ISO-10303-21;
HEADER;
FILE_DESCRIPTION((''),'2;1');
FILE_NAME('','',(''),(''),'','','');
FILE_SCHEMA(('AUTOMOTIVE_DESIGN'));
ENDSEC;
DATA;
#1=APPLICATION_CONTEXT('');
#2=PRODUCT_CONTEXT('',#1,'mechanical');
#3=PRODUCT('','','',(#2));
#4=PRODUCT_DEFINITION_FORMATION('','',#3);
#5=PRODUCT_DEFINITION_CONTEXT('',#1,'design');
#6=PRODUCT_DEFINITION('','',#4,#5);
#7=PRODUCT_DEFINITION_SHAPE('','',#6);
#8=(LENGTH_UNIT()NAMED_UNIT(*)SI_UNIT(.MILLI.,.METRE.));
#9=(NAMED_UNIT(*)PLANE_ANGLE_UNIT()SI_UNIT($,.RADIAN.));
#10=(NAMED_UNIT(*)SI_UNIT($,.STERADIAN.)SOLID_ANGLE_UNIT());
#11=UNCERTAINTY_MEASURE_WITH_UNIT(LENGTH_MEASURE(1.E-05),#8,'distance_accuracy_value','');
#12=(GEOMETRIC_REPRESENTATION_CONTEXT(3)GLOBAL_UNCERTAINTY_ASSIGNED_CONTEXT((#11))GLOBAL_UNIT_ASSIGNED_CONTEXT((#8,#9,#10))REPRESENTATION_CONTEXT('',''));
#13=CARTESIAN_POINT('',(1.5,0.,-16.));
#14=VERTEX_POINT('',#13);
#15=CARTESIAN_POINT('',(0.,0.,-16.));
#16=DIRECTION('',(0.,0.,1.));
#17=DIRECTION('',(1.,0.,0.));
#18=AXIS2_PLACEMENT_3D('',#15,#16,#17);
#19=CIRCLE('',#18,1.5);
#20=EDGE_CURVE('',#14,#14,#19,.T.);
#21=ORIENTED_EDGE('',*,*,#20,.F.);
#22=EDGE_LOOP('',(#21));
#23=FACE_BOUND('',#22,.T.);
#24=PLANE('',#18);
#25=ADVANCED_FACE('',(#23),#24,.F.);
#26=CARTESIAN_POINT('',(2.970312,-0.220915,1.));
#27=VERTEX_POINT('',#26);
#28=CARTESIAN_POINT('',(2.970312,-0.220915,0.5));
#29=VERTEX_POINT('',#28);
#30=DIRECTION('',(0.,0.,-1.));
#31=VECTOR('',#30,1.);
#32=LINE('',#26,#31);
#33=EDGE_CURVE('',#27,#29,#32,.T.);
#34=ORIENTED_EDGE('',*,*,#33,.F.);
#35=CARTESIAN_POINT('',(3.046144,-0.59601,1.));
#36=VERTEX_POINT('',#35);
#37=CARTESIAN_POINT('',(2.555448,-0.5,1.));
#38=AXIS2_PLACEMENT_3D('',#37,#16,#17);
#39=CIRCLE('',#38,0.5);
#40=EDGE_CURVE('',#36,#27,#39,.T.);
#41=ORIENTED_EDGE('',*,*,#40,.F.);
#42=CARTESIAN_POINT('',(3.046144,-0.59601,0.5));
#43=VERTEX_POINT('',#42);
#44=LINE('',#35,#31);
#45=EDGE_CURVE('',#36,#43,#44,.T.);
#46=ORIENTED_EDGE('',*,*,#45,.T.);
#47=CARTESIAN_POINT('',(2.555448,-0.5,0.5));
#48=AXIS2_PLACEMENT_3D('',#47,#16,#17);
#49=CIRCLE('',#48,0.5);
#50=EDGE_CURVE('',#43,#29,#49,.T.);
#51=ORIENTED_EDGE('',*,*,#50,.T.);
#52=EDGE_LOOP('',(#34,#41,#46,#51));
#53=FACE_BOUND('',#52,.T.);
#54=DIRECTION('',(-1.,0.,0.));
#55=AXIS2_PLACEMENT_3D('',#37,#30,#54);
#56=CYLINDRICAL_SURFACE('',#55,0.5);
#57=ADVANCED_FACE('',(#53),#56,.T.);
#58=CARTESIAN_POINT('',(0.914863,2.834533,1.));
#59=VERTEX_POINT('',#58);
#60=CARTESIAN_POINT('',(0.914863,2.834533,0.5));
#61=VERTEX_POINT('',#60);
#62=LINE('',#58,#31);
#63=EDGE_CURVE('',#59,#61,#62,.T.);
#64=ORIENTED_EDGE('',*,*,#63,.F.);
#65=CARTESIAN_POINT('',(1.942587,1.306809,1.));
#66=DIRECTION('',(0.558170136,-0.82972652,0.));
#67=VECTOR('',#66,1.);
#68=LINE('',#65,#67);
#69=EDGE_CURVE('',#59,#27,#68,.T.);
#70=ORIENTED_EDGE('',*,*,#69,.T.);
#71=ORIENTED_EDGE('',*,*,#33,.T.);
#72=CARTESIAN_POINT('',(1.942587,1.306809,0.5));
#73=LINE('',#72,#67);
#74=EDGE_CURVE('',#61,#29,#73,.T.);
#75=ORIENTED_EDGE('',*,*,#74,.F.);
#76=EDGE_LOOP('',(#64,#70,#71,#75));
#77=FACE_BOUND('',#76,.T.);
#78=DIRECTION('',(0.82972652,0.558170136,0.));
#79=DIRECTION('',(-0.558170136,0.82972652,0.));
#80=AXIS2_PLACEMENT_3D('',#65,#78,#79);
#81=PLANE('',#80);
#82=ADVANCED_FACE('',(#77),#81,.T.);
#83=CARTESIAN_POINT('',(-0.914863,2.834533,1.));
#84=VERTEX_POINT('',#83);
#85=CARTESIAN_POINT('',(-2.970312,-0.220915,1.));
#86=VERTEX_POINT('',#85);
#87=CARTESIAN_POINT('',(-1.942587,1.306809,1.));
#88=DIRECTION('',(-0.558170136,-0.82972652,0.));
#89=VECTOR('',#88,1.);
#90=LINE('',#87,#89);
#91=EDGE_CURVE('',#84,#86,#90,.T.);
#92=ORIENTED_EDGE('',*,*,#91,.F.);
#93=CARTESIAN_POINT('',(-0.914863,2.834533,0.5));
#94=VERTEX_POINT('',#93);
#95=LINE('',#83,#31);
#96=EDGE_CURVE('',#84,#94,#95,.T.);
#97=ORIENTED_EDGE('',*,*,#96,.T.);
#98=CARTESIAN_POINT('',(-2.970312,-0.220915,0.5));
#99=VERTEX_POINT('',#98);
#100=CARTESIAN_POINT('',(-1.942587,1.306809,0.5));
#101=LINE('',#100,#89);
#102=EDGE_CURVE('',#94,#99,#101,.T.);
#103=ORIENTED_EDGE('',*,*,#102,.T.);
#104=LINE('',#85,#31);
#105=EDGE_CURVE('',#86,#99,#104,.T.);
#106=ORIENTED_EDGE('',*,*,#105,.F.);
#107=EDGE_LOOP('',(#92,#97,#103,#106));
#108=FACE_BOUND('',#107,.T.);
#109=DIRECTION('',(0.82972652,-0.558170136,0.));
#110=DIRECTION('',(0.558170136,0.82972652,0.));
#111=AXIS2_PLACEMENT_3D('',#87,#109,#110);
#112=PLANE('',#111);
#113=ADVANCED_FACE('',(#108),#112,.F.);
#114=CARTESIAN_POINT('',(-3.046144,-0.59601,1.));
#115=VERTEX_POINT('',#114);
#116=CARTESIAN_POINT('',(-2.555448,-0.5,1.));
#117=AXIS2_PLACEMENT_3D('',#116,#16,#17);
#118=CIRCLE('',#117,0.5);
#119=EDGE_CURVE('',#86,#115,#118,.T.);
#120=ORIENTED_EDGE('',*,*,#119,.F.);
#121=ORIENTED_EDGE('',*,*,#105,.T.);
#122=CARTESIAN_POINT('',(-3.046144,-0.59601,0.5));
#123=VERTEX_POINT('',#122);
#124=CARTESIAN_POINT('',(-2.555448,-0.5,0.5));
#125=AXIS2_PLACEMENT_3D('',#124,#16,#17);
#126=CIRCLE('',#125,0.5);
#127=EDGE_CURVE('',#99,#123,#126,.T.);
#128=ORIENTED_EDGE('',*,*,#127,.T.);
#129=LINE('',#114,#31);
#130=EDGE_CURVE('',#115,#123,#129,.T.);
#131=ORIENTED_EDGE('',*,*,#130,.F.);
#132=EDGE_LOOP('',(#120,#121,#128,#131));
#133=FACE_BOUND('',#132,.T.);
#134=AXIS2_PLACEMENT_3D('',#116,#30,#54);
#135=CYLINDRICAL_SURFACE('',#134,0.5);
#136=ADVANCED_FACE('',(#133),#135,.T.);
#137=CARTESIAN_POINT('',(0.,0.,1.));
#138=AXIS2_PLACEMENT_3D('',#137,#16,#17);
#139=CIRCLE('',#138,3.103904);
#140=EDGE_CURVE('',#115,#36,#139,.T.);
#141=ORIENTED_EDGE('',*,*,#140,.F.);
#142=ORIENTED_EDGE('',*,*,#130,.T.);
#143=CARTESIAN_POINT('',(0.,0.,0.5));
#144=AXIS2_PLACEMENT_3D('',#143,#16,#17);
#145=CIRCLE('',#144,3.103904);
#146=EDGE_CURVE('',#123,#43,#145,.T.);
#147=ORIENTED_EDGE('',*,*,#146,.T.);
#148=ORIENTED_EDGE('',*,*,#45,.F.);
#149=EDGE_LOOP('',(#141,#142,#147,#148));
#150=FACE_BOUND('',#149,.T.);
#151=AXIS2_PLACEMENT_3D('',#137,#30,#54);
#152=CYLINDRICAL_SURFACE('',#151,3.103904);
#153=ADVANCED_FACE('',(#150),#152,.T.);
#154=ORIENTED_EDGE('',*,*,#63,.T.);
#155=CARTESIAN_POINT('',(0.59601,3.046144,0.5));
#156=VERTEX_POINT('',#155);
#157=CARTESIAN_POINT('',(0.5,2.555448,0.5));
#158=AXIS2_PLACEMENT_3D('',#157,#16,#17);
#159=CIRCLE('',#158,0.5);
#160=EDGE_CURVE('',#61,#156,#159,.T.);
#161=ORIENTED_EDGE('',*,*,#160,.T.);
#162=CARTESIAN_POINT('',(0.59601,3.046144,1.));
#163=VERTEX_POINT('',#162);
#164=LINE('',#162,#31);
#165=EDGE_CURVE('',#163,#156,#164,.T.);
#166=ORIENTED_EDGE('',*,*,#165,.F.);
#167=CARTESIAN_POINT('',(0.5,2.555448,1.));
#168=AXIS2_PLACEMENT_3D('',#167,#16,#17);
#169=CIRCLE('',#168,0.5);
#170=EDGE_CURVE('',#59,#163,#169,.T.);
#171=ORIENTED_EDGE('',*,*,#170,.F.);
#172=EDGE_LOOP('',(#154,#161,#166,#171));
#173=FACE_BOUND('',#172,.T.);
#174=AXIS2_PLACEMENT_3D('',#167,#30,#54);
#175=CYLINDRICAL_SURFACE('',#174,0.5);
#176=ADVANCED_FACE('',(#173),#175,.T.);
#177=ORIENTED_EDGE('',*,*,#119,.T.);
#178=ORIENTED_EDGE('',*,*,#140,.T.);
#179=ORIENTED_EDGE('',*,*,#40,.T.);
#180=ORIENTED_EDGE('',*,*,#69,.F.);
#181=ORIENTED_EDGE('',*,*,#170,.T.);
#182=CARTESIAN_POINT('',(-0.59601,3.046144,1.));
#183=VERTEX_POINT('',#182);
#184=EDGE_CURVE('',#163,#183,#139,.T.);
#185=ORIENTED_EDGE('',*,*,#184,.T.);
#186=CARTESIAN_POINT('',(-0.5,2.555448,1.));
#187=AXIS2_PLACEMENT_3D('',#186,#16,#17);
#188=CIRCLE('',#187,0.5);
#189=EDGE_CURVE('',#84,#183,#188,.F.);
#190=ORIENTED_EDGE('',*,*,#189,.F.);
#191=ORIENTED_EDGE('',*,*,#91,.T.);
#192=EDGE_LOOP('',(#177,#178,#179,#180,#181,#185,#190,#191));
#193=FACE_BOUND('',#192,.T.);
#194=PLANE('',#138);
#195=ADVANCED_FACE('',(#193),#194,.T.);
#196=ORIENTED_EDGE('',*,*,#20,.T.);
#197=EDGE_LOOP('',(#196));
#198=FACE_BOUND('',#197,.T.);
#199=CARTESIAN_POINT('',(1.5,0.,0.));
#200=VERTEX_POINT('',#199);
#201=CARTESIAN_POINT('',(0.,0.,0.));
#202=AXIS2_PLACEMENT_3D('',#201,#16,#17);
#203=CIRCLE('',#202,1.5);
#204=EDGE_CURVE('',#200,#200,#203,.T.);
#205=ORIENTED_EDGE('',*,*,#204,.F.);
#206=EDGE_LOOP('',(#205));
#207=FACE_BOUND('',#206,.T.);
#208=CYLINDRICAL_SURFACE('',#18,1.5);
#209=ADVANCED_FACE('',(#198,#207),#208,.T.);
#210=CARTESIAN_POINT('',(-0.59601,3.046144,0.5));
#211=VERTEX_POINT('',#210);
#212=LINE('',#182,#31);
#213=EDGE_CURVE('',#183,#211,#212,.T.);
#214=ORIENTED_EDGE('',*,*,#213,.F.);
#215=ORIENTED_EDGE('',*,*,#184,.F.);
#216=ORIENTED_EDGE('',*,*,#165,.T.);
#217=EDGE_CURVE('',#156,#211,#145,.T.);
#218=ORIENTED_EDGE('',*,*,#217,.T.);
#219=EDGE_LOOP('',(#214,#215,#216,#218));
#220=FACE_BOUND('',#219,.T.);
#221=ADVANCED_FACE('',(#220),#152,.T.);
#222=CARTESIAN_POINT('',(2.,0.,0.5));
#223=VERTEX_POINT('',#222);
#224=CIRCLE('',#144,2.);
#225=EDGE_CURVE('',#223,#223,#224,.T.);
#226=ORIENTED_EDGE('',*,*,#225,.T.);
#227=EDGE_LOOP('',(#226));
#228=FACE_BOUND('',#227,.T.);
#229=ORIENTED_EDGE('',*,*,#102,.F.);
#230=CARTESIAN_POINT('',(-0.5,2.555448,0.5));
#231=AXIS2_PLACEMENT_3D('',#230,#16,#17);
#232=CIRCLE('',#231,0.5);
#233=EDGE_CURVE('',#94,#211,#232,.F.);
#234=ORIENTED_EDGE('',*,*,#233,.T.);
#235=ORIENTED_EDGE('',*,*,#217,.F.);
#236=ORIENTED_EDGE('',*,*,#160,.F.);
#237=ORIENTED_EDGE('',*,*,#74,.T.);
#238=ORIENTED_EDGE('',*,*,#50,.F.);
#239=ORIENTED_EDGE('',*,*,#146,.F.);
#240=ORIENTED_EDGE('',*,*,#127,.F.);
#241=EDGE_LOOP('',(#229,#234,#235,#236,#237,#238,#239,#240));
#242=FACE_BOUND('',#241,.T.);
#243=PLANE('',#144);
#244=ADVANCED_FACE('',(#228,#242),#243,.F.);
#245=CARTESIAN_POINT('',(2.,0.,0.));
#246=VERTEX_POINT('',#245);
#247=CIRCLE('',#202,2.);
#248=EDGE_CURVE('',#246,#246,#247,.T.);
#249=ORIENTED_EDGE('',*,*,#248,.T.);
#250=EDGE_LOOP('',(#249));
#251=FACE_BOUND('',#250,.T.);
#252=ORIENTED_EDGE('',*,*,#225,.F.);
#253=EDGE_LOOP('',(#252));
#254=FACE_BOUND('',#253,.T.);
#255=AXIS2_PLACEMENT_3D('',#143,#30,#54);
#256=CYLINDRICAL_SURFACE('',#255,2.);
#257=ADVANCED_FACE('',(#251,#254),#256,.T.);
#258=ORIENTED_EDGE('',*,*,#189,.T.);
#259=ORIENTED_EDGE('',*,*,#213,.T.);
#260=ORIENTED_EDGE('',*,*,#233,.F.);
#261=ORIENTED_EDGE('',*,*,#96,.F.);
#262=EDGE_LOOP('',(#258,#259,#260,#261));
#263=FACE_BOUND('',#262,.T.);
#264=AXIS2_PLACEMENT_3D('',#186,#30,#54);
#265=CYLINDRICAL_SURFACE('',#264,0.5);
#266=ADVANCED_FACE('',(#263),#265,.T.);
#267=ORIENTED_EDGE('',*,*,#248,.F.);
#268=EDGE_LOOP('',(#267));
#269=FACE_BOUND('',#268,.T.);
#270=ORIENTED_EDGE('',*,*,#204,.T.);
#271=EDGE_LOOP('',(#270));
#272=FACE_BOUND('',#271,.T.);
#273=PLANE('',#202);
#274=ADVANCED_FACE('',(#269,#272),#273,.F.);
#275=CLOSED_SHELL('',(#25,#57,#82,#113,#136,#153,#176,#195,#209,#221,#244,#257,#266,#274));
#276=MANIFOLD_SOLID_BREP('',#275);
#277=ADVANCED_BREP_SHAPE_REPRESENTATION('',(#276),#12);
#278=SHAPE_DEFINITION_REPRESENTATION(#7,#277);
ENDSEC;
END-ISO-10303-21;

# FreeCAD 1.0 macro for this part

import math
import FreeCAD as App
import Part
import Sketcher
Q = App.Units.Quantity

doc = App.newDocument("Part")
body = doc.addObject("PartDesign::Body", "Body")

# Sketch on XY plane
sketch1 = body.newObject("Sketcher::SketchObject", "Sketch")
sketch1.AttachmentSupport = (doc.getObject("XY_Plane"), [""])
sketch1.MapMode = "FlatFace"
sketch1.addGeometry(Part.Circle(App.Vector(0, 0, 0), App.Vector(0, 0, 1), 1.5), False)
sketch1.addConstraint([
    Sketcher.Constraint("Coincident", 0, 3, -1, 1),
    Sketcher.Constraint("Diameter", 0, Q("3 mm")),
])
pad1 = body.newObject("PartDesign::Pad", "Pad")
pad1.Profile = sketch1
pad1.Length = 16
pad1.Reversed = True

# Sketch on XY plane
sketch2 = body.newObject("Sketcher::SketchObject", "Sketch001")
sketch2.AttachmentSupport = (doc.getObject("XY_Plane"), [""])
sketch2.MapMode = "FlatFace"
sketch2.addGeometry(Part.Circle(App.Vector(0, 0, 0), App.Vector(0, 0, 1), 2), False)
sketch2.addConstraint([
    Sketcher.Constraint("Coincident", 0, 3, -1, 1),
    Sketcher.Constraint("Diameter", 0, Q("4 mm")),
])
pad2 = body.newObject("PartDesign::Pad", "Pad001")
pad2.Profile = sketch2
pad2.Length = 0.5

# Sketch on XY plane
sketch3 = body.newObject("Sketcher::SketchObject", "Sketch002")
sketch3.AttachmentSupport = (doc.getObject("XY_Plane"), [""])
sketch3.MapMode = "FlatFace"
sketch3.AttachmentOffset = App.Placement(App.Vector(0, 0, 0.5), App.Rotation())
sketch3.addGeometry([
    Part.LineSegment(App.Vector(-0.914863, 2.834533, 0), App.Vector(-2.970312, -0.220915, 0)),  # 0
    Part.ArcOfCircle(Part.Circle(App.Vector(-2.555448, -0.5, 0), App.Vector(0, 0, 1), 0.5), math.radians(146.070655), math.radians(191.070655)),  # 1
    Part.ArcOfCircle(Part.Circle(App.Vector(0, 0, 0), App.Vector(0, 0, 1), 3.103904), math.radians(-168.929345), math.radians(-11.070655)),  # 2
    Part.ArcOfCircle(Part.Circle(App.Vector(2.555448, -0.5, 0), App.Vector(0, 0, 1), 0.5), math.radians(-11.070655), math.radians(33.929345)),  # 3
    Part.LineSegment(App.Vector(2.970312, -0.220915, 0), App.Vector(0.914863, 2.834533, 0)),  # 4
    Part.ArcOfCircle(Part.Circle(App.Vector(0.5, 2.555448, 0), App.Vector(0, 0, 1), 0.5), math.radians(33.929345), math.radians(78.929345)),  # 5
    Part.ArcOfCircle(Part.Circle(App.Vector(0, 0, 0), App.Vector(0, 0, 1), 3.103904), math.radians(78.929345), math.radians(90)),  # 6
    Part.ArcOfCircle(Part.Circle(App.Vector(0, 0, 0), App.Vector(0, 0, 1), 3.103904), math.radians(90), math.radians(101.070655)),  # 7
    Part.ArcOfCircle(Part.Circle(App.Vector(-0.5, 2.555448, 0), App.Vector(0, 0, 1), 0.5), math.radians(101.070655), math.radians(146.070655)),  # 8
], False)
sketch3.addConstraint([
    Sketcher.Constraint("Tangent", 0, 2, 1, 1),
    Sketcher.Constraint("Tangent", 1, 2, 2, 1),
    Sketcher.Constraint("Tangent", 2, 2, 3, 1),
    Sketcher.Constraint("Tangent", 3, 2, 4, 1),
    Sketcher.Constraint("Tangent", 4, 2, 5, 1),
    Sketcher.Constraint("Tangent", 5, 2, 6, 1),
    Sketcher.Constraint("Tangent", 6, 2, 7, 1),
    Sketcher.Constraint("Tangent", 7, 2, 8, 1),
    Sketcher.Constraint("Tangent", 8, 2, 0, 1),
    Sketcher.Constraint("Coincident", 2, 3, -1, 1),
    Sketcher.Constraint("Coincident", 6, 3, -1, 1),
    Sketcher.Constraint("Equal", 1, 3),
    Sketcher.Constraint("Equal", 3, 5),
    Sketcher.Constraint("Equal", 2, 6),
    Sketcher.Constraint("Equal", 6, 7),
    Sketcher.Constraint("Equal", 5, 8),
    Sketcher.Constraint("Symmetric", 0, 2, 3, 2, -2),
    Sketcher.Constraint("PointOnObject", 6, 2, -2),
    Sketcher.Constraint("Radius", 1, Q("0.5 mm")),
    Sketcher.Constraint("DistanceX", 8, 3, 5, 3, Q("1 mm")),
    Sketcher.Constraint("DistanceY", 1, 3, -1, 1, Q("0.5 mm")),
    Sketcher.Constraint("Radius", 2, Q("3.103904 mm")),
])
pad3 = body.newObject("PartDesign::Pad", "Pad002")
pad3.Profile = sketch3
pad3.Length = 0.5

doc.recompute()
